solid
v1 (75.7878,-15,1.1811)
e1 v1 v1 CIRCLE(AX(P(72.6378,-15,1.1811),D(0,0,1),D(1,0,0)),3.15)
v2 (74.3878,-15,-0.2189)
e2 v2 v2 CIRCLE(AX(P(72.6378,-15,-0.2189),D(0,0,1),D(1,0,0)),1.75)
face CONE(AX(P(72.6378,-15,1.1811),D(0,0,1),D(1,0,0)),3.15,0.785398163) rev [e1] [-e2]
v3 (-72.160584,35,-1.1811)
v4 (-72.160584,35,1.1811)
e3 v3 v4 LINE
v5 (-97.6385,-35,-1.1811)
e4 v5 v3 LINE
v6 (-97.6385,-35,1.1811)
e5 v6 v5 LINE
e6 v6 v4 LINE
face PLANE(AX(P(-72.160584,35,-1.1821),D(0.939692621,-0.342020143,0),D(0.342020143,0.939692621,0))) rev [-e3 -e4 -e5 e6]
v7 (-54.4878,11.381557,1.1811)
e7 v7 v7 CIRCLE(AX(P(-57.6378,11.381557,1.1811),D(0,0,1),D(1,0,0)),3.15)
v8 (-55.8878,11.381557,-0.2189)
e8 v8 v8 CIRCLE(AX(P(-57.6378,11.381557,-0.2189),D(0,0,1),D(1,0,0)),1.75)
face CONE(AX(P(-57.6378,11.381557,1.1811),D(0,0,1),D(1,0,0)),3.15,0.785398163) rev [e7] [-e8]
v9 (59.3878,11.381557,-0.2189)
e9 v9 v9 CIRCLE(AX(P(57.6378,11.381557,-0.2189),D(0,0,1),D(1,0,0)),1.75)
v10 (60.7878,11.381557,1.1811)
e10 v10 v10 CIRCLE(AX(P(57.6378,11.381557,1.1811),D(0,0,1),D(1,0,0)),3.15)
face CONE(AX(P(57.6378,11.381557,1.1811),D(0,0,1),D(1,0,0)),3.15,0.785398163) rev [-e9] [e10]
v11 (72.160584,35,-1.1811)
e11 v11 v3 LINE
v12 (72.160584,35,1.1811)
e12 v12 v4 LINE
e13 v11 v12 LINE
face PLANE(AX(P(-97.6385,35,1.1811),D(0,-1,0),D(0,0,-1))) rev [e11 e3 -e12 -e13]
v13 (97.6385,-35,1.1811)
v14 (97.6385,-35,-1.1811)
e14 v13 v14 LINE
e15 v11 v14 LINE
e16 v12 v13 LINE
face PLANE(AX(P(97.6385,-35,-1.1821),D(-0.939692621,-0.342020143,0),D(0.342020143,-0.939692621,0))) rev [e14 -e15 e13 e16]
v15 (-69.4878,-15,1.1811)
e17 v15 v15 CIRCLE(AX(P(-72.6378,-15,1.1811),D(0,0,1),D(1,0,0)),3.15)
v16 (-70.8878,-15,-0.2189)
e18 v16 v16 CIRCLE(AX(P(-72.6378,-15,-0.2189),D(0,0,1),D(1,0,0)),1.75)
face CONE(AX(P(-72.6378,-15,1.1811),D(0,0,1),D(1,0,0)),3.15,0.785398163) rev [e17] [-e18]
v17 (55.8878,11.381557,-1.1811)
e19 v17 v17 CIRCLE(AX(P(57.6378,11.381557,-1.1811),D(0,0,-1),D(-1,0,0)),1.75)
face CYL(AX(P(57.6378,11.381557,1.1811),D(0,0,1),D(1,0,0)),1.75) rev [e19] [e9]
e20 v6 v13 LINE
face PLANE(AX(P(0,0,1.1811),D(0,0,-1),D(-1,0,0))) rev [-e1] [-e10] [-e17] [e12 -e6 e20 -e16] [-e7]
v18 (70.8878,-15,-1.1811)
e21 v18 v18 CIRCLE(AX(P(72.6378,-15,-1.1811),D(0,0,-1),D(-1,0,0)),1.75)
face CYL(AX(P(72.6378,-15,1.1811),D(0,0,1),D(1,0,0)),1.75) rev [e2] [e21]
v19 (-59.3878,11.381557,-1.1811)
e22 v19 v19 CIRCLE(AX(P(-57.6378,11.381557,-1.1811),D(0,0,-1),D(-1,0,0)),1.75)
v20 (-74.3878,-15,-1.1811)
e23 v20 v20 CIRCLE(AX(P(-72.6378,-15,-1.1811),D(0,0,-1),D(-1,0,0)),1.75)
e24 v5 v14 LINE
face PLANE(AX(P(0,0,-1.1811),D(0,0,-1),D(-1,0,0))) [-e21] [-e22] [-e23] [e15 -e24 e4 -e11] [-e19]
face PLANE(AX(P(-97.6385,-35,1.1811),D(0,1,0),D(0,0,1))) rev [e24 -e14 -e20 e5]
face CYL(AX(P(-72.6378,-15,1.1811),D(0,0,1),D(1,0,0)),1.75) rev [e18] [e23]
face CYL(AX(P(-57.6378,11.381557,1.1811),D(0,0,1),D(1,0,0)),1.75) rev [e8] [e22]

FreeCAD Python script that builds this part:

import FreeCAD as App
import Part
import Sketcher
from FreeCAD import Vector
Q = App.Units.Quantity


def add_polygon(sketch, points):
    """Adds a closed chain of lines whose ends are joined by coincident constraints."""
    first, n = sketch.GeometryCount, len(points)
    for a, b in zip(points, points[1:] + points[:1]):
        sketch.addGeometry(Part.LineSegment(App.Vector(*a, 0), App.Vector(*b, 0)), False)
    for i in range(n):
        sketch.addConstraint(Sketcher.Constraint("Coincident", first + i, 2, first + (i + 1) % n, 1))

doc = App.newDocument("Part")
body = doc.addObject("PartDesign::Body", "Body")

sketch1 = body.newObject("Sketcher::SketchObject", "Sketch")
sketch1.AttachmentSupport = (doc.getObject("XY_Plane"), [""])
sketch1.MapMode = "FlatFace"
add_polygon(sketch1, [(-98, 35), (-98, -35), (98, -35), (98, 35)])
sketch1.addConstraint([
    Sketcher.Constraint("Vertical", 0),
    Sketcher.Constraint("Horizontal", 1),
    Sketcher.Constraint("Vertical", 2),
    Sketcher.Constraint("Horizontal", 3),
    Sketcher.Constraint("Symmetric", 0, 2, 2, 2, -1, 1),
    Sketcher.Constraint("DistanceY", 0, 2, 0, 1, Q("70 mm")),
    Sketcher.Constraint("DistanceX", 1, 1, 1, 2, Q("195.277 mm")),
])
pad1 = body.newObject("PartDesign::Pad", "Pad")
pad1.Profile = sketch1
pad1.Length = 2.3622
pad1.Midplane = True

sketch2 = body.newObject("Sketcher::SketchObject", "Sketch001")
sketch2.AttachmentSupport = (doc.getObject("XY_Plane"), [""])
sketch2.MapMode = "FlatFace"
sketch2.AttachmentOffset = App.Placement(Vector(0, 0, 1.1811), App.Rotation())
add_polygon(sketch2, [(-72, 35), (-98, 35), (-98, -35)])
sketch2.addConstraint([
    Sketcher.Constraint("Horizontal", 0),
    Sketcher.Constraint("Vertical", 1),
    Sketcher.Constraint("DistanceY", 1, 2, 1, 1, Q("70 mm")),
    Sketcher.Constraint("Angle", 2, Q("70 deg")),
    Sketcher.Constraint("DistanceY", -1, 1, 0, 2, Q("35 mm")),
    Sketcher.Constraint("DistanceX", 0, 2, -1, 1, Q("97.6385 mm")),
])
pocket1 = body.newObject("PartDesign::Pocket", "Pocket")
pocket1.Profile = sketch2
pocket1.Type = "UpToFirst"

sketch3 = body.newObject("Sketcher::SketchObject", "Sketch002")
sketch3.AttachmentSupport = (doc.getObject("XY_Plane"), [""])
sketch3.MapMode = "FlatFace"
sketch3.AttachmentOffset = App.Placement(Vector(0, 0, 1.1811), App.Rotation())
add_polygon(sketch3, [(98, -35), (98, 35), (72, 35)])
sketch3.addConstraint([
    Sketcher.Constraint("Vertical", 0),
    Sketcher.Constraint("Horizontal", 1),
    Sketcher.Constraint("DistanceY", 0, 1, 0, 2, Q("70 mm")),
    Sketcher.Constraint("Angle", 2, Q("-70 deg")),
    Sketcher.Constraint("DistanceY", -1, 1, 0, 2, Q("35 mm")),
    Sketcher.Constraint("DistanceX", -1, 1, 0, 2, Q("97.6385 mm")),
])
pocket2 = body.newObject("PartDesign::Pocket", "Pocket001")
pocket2.Profile = sketch3
pocket2.Type = "UpToFirst"

sketch4 = body.newObject("Sketcher::SketchObject", "Sketch003")
sketch4.AttachmentSupport = (doc.getObject("XY_Plane"), [""])
sketch4.MapMode = "FlatFace"
sketch4.AttachmentOffset = App.Placement(Vector(0, 0, 1.1811), App.Rotation())
sketch4.addGeometry([
    Part.Circle(Vector(-72.6, -15, 0), Vector(0, 0, 1), 1.8),
    Part.Circle(Vector(-57.6, 11.4, 0), Vector(0, 0, 1), 1.8),
    Part.Circle(Vector(57.6, 11.4, 0), Vector(0, 0, 1), 1.8),
    Part.Circle(Vector(72.6, -15, 0), Vector(0, 0, 1), 1.8),
], False)
sketch4.addConstraint([
    Sketcher.Constraint("Equal", 0, 1),
    Sketcher.Constraint("Equal", 1, 2),
    Sketcher.Constraint("Equal", 2, 3),
    Sketcher.Constraint("Symmetric", 1, 3, 2, 3, -2),
    Sketcher.Constraint("Symmetric", 0, 3, 3, 3, -2),
    Sketcher.Constraint("Diameter", 0, Q("3.5 mm")),
    Sketcher.Constraint("DistanceY", 0, 3, -1, 1, Q("15 mm")),
    Sketcher.Constraint("DistanceX", 0, 3, 1, 3, Q("15 mm")),
    Sketcher.Constraint("DistanceX", 0, 3, -1, 1, Q("72.6378 mm")),
    Sketcher.Constraint("DistanceY", -1, 1, 1, 3, Q("11.381557 mm")),
])
doc.recompute()
hole = body.newObject("PartDesign::Hole", "Hole")
hole.Profile = sketch4
hole.ThreadType = "None"
hole.Diameter = 3.5
hole.DepthType = "Dimension"
hole.Depth = 5
hole.DrillPoint = "Flat"
hole.HoleCutType = "Countersink"
hole.HoleCutDiameter = 6.3
hole.HoleCutCountersinkAngle = 90

doc.recompute()
